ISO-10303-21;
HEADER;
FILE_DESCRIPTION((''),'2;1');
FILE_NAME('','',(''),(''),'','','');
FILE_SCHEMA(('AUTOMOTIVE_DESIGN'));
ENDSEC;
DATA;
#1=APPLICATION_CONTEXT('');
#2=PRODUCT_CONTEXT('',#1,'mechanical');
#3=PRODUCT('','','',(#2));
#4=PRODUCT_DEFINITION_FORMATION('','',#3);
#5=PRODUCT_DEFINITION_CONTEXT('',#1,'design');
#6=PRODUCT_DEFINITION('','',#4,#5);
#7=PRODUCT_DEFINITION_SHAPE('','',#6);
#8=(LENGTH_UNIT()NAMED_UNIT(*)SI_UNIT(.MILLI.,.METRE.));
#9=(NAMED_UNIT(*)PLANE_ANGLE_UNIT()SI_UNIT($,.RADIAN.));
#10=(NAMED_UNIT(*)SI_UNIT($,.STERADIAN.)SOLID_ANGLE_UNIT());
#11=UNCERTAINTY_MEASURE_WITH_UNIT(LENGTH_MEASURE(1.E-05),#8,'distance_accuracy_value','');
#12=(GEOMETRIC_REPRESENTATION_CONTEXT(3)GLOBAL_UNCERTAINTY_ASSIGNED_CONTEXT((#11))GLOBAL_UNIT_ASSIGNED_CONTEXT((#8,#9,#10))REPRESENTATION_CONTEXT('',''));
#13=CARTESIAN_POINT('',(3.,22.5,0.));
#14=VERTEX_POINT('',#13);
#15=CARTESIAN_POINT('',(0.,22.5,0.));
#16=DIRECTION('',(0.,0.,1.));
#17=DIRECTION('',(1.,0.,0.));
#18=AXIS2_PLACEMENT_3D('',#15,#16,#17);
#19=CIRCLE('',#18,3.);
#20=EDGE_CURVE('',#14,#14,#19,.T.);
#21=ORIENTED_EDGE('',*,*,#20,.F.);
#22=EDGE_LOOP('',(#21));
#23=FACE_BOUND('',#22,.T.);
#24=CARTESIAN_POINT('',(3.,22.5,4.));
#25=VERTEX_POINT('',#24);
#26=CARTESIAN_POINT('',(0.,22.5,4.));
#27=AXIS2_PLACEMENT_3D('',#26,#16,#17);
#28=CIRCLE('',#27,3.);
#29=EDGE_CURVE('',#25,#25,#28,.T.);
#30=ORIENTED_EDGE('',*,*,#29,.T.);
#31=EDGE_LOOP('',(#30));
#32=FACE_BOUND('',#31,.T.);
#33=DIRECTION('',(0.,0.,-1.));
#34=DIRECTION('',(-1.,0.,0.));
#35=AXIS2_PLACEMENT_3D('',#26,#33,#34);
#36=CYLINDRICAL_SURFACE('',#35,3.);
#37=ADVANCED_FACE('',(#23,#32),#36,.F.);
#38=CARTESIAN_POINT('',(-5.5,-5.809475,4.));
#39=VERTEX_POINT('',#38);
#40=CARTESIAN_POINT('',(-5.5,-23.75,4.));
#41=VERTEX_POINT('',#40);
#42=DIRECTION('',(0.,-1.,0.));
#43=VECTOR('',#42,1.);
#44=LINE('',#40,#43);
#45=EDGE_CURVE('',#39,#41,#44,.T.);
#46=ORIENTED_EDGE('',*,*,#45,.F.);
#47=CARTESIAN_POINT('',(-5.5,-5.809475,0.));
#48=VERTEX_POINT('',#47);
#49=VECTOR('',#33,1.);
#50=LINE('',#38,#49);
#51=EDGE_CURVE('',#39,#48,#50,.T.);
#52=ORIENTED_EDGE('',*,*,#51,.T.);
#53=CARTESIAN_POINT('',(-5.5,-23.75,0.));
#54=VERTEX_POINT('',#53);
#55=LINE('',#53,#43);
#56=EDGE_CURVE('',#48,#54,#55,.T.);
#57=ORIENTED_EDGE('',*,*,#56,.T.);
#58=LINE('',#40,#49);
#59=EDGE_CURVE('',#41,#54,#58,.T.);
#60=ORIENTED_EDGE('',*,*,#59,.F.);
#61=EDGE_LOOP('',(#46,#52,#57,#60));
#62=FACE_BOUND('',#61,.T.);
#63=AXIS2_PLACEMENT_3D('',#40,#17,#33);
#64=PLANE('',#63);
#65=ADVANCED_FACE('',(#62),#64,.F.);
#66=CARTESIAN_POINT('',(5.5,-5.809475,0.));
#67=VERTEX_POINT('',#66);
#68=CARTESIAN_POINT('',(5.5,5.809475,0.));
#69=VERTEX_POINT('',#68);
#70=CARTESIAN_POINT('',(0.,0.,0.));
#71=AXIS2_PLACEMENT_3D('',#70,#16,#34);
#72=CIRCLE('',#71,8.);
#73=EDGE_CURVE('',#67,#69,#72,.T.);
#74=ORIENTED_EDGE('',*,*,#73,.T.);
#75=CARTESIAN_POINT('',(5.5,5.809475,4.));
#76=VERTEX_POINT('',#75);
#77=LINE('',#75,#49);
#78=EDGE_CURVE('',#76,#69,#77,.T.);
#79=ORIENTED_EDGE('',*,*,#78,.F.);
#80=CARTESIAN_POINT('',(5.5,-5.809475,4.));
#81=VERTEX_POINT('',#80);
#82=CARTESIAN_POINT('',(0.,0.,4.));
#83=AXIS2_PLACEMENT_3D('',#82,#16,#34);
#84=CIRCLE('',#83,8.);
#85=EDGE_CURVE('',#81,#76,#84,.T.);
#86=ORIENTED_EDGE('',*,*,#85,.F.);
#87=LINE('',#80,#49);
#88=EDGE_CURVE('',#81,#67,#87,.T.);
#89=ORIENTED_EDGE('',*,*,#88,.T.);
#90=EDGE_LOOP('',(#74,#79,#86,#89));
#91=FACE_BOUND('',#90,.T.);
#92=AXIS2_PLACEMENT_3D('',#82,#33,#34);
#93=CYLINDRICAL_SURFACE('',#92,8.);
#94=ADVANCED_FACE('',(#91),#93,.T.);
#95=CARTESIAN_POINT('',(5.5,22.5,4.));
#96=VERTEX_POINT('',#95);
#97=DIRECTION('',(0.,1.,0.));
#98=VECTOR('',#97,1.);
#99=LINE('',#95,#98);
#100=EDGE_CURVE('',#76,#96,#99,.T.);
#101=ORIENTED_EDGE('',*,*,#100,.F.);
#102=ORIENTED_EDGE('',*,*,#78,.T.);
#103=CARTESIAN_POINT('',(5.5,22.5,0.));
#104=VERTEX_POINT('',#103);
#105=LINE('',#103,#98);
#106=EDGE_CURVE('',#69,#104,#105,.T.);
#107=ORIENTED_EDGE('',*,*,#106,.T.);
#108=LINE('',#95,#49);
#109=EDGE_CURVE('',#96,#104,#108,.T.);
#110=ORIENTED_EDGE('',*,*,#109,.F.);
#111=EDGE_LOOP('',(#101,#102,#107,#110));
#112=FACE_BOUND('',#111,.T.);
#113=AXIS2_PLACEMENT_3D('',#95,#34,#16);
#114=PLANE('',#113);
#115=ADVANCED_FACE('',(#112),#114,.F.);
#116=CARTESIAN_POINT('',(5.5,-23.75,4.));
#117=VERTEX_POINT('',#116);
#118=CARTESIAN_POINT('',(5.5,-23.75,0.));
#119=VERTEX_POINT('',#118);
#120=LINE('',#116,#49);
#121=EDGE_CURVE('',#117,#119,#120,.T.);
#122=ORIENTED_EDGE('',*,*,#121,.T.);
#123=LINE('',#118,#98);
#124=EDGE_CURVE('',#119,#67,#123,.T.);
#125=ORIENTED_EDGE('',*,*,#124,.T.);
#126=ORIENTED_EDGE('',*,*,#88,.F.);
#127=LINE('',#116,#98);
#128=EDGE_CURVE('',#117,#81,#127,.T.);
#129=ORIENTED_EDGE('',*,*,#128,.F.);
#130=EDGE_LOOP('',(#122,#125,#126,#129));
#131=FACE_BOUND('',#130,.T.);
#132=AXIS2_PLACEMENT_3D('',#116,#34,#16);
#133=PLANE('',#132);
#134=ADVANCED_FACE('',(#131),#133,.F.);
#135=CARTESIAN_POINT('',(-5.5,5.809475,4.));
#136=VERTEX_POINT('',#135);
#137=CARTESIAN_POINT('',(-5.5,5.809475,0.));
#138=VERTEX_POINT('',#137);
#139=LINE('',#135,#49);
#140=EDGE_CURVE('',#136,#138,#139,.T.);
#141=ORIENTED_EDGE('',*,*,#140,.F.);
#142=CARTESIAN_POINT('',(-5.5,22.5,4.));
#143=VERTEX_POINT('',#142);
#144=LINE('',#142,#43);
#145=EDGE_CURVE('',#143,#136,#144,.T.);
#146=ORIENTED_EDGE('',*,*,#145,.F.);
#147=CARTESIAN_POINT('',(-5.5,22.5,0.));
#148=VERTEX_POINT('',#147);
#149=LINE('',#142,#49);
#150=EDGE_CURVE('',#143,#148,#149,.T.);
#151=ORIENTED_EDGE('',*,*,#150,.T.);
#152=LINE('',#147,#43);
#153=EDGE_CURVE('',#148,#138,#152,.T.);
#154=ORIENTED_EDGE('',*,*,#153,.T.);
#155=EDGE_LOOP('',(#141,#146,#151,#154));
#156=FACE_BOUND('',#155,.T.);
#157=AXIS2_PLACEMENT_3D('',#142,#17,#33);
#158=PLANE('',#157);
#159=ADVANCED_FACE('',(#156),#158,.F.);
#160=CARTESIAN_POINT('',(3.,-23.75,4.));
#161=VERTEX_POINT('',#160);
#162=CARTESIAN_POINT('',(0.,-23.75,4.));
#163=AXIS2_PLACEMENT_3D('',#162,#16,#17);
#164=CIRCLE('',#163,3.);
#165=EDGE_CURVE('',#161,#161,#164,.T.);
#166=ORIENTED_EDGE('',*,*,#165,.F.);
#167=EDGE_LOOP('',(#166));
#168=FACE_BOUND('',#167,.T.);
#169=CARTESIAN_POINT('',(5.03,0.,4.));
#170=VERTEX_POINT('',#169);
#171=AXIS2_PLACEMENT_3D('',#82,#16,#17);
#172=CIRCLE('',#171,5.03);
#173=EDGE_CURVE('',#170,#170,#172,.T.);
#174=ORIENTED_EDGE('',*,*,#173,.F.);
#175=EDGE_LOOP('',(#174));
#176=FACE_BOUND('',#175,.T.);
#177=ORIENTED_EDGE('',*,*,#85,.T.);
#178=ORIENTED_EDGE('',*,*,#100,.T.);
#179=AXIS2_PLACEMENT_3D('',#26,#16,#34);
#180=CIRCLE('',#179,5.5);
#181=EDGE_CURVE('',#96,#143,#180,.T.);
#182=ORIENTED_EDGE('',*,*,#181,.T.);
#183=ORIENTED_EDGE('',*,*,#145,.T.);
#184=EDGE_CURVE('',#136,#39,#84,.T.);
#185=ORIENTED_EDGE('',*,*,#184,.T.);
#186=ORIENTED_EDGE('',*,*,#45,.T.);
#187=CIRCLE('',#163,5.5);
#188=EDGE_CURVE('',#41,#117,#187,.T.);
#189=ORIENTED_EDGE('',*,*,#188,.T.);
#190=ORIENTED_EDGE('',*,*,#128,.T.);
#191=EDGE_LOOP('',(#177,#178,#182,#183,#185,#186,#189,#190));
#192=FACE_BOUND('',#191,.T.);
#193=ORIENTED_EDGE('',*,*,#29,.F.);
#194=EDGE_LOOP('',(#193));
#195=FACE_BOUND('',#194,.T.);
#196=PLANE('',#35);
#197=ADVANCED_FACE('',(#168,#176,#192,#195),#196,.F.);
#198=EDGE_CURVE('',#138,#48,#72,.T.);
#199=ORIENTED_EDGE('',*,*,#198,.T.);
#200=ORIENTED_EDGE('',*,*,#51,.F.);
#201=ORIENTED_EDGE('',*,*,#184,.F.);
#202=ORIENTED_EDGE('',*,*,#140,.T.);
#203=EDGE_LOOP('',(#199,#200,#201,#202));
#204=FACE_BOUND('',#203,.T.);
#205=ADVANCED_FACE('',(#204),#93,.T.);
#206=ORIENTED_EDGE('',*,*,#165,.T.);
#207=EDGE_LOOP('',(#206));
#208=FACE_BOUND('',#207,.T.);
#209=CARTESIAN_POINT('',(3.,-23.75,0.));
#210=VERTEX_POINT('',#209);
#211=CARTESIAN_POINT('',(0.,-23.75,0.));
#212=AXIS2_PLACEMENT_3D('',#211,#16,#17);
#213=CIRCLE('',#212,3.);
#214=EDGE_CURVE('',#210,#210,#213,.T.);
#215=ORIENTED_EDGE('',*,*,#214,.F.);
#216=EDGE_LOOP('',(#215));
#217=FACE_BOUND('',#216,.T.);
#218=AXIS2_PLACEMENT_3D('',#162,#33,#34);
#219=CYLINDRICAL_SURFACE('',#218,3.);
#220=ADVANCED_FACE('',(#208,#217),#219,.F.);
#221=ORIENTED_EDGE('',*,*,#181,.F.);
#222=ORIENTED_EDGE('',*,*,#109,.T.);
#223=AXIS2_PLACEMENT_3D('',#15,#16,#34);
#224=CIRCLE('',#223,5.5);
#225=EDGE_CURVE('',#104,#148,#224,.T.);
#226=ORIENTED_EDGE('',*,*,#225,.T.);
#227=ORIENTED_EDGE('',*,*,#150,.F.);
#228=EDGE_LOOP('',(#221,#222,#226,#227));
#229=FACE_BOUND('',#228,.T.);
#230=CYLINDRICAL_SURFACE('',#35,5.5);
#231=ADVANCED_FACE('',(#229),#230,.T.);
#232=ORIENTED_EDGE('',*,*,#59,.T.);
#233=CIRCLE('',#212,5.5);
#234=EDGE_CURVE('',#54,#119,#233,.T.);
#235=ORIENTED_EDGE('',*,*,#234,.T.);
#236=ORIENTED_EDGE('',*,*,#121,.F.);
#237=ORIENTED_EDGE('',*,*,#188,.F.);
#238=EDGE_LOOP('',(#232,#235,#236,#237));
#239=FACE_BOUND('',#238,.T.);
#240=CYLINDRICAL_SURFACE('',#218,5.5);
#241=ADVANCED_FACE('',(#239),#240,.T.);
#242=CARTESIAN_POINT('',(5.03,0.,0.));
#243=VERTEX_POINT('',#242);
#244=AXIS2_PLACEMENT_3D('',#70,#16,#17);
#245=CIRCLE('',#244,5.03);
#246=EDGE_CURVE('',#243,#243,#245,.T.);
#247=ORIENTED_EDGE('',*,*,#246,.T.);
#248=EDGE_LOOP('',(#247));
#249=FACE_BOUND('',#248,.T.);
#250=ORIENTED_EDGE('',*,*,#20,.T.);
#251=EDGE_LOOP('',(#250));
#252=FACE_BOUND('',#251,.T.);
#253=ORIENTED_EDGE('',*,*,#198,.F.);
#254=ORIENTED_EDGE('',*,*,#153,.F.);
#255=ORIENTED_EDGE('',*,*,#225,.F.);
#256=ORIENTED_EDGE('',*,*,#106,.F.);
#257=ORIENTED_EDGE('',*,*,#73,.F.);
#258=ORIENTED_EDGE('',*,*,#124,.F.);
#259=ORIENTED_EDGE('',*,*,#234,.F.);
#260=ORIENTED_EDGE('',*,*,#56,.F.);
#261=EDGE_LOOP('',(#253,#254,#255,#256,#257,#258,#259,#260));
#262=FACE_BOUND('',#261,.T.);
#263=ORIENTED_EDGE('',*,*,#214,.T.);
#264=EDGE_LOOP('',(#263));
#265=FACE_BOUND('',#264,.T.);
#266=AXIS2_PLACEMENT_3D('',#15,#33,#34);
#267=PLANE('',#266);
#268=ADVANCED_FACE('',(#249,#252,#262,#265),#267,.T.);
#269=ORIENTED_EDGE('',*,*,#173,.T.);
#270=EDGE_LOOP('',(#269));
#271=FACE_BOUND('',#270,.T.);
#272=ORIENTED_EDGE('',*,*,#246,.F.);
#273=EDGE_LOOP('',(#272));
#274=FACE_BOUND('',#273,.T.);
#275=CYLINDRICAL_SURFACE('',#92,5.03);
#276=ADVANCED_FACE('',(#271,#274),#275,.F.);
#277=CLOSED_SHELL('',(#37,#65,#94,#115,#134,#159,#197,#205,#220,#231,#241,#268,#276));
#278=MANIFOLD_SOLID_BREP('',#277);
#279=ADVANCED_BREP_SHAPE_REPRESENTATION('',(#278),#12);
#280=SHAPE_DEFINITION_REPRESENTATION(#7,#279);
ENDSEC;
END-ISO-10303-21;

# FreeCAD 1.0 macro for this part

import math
import FreeCAD as App
import Part
import Sketcher

doc = App.newDocument("Part")
body = doc.addObject("PartDesign::Body", "Body")

# Sketch on XY plane
sketch1 = body.newObject("Sketcher::SketchObject", "Sketch")
sketch1.AttachmentSupport = (doc.getObject("XY_Plane"), [""])
sketch1.MapMode = "FlatFace"
sketch1.addGeometry([
    Part.LineSegment(App.Vector(5.5, 5.8, 0), App.Vector(5.5, 22.5, 0)),  # 0
    Part.ArcOfCircle(Part.Circle(App.Vector(0, 22.5, 0), App.Vector(0, 0, 1), 5.5), math.radians(0), math.radians(180)),  # 1
    Part.LineSegment(App.Vector(-5.5, 22.5, 0), App.Vector(-5.5, 5.8, 0)),  # 2
    Part.ArcOfCircle(Part.Circle(App.Vector(0, 0, 0), App.Vector(0, 0, 1), 8), math.radians(133), math.radians(227)),  # 3
    Part.LineSegment(App.Vector(-5.5, -5.8, 0), App.Vector(-5.5, -23.8, 0)),  # 4
    Part.ArcOfCircle(Part.Circle(App.Vector(0, -23.8, 0), App.Vector(0, 0, 1), 5.5), math.radians(180), math.radians(360)),  # 5
    Part.LineSegment(App.Vector(5.5, -23.8, 0), App.Vector(5.5, -5.8, 0)),  # 6
    Part.ArcOfCircle(Part.Circle(App.Vector(0, 0, 0), App.Vector(0, 0, 1), 8), math.radians(-47), math.radians(47)),  # 7
    Part.Circle(App.Vector(0, -23.8, 0), App.Vector(0, 0, 1), 3),  # 8
    Part.Circle(App.Vector(0, 0, 0), App.Vector(0, 0, 1), 5),  # 9
    Part.Circle(App.Vector(0, 22.5, 0), App.Vector(0, 0, 1), 3),  # 10
], False)
sketch1.addConstraint([
    Sketcher.Constraint("Tangent", 0, 2, 1, 1),
    Sketcher.Constraint("Tangent", 1, 2, 2, 1),
    Sketcher.Constraint("Coincident", 2, 2, 3, 1),
    Sketcher.Constraint("Coincident", 3, 2, 4, 1),
    Sketcher.Constraint("Tangent", 4, 2, 5, 1),
    Sketcher.Constraint("Tangent", 5, 2, 6, 1),
    Sketcher.Constraint("Coincident", 6, 2, 7, 1),
    Sketcher.Constraint("Coincident", 7, 2, 0, 1),
    Sketcher.Constraint("Vertical", 0),
    Sketcher.Constraint("Vertical", 2),
    Sketcher.Constraint("Vertical", 4),
    Sketcher.Constraint("Vertical", 6),
    Sketcher.Constraint("Coincident", 3, 3, -1, 1),
    Sketcher.Constraint("Coincident", 7, 3, -1, 1),
    Sketcher.Constraint("Coincident", 9, 3, -1, 1),
    Sketcher.Constraint("Coincident", 8, 3, 5, 3),
    Sketcher.Constraint("Coincident", 10, 3, 1, 3),
    Sketcher.Constraint("Equal", 1, 5),
    Sketcher.Constraint("Equal", 3, 7),
    Sketcher.Constraint("Equal", 8, 10),
    Sketcher.Constraint("PointOnObject", 1, 3, -2),
    Sketcher.Constraint("PointOnObject", 5, 3, -2),
    Sketcher.Constraint("Diameter", 8, 6.0),
    Sketcher.Constraint("Radius", 3, 8.0),
    Sketcher.Constraint("Radius", 1, 5.5),
    Sketcher.Constraint("Diameter", 9, 10.06),
    Sketcher.Constraint("DistanceY", -1, 1, 1, 3, 22.5),
    Sketcher.Constraint("DistanceY", 5, 3, -1, 1, 23.75),
])
pad1 = body.newObject("PartDesign::Pad", "Pad")
pad1.Profile = sketch1
pad1.Length = 4

doc.recompute()
